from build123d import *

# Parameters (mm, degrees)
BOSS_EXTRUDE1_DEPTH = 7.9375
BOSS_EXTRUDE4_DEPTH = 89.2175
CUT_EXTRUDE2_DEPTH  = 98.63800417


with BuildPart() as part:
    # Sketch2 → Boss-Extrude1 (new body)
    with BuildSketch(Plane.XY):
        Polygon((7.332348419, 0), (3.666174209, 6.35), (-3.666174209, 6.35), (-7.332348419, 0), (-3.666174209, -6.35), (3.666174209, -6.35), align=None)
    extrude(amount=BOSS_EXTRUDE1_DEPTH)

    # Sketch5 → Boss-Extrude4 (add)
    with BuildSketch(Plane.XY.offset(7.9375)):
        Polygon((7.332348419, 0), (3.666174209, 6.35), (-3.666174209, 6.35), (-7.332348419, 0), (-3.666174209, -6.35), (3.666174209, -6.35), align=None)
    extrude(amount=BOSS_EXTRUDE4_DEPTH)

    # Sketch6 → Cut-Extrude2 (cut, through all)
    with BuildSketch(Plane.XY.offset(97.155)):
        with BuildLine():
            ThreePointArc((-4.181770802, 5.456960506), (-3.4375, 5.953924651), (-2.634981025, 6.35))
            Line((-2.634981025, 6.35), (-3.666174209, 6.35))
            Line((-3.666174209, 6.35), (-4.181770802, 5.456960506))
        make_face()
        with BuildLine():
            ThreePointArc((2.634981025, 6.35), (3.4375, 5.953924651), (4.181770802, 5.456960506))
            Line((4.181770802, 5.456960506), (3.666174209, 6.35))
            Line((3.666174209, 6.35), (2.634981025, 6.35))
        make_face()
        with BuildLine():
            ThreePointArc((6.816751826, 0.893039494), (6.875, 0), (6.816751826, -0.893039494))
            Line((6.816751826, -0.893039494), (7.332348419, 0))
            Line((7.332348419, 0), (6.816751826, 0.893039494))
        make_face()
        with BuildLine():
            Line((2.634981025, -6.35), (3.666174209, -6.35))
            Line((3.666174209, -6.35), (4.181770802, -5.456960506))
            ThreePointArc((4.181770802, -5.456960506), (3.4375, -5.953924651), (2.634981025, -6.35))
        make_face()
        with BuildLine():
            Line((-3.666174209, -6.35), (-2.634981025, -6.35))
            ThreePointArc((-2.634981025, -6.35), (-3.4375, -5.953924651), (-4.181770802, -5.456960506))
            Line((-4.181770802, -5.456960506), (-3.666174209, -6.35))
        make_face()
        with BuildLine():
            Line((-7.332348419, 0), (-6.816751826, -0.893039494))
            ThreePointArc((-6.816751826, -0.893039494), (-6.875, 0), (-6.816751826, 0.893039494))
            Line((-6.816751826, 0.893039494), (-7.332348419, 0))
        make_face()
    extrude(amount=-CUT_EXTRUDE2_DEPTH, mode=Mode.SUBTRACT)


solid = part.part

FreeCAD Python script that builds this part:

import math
import FreeCAD as App
import Part
import Sketcher
Q = App.Units.Quantity


def add_polygon(sketch, points):
    """Adds a closed chain of lines whose ends are joined by coincident constraints."""
    first, n = sketch.GeometryCount, len(points)
    for a, b in zip(points, points[1:] + points[:1]):
        sketch.addGeometry(Part.LineSegment(App.Vector(*a, 0), App.Vector(*b, 0)), False)
    for i in range(n):
        sketch.addConstraint(Sketcher.Constraint("Coincident", first + i, 2, first + (i + 1) % n, 1))

doc = App.newDocument("Part")
params = doc.addObject("Spreadsheet::Sheet", "Params")
for row, (alias, value) in enumerate([
    ("pad1_length", "0.3125 in"),
    ("pad2_length", "3.5125 in"),
], start=1):
    params.set(f"A{row}", alias)
    params.set(f"B{row}", "=" + value)
    params.setAlias(f"B{row}", alias)

body = doc.addObject("PartDesign::Body", "Body")

sketch1 = doc.addObject("Sketcher::SketchObject", "Sketch")
body.addObject(sketch1)
sketch1.AttachmentSupport = (doc.XY_Plane, [""])
sketch1.MapMode = "FlatFace"
add_polygon(sketch1, [(7, 0), (4, 6), (-4, 6), (-7, 0), (-4, -6), (4, -6)])
sketch1.addConstraint([
    Sketcher.Constraint("Horizontal", 1),
    Sketcher.Constraint("Horizontal", 4),
    Sketcher.Constraint("Symmetric", 0, 2, 3, 2, -1, 1),
    Sketcher.Constraint("Symmetric", 2, 2, 5, 2, -1, 1),
    Sketcher.Constraint("PointOnObject", 2, 2, -1),
    Sketcher.Constraint("Parallel", 2, 5),
    Sketcher.Constraint("Vertical", 1, 2, 3, 2),
    Sketcher.Constraint("Angle", 0, Q("120 deg")),
    Sketcher.Constraint("DistanceY", 3, 2, 1, 2, Q("0.5 in")),
    Sketcher.Constraint("DistanceX", 1, 2, 1, 1, 7.332348),
])
pad1 = doc.addObject("PartDesign::Pad", "Pad")
body.addObject(pad1)
pad1.Profile = sketch1
pad1.setExpression("Length", "Params.pad1_length")

sketch2 = doc.addObject("Sketcher::SketchObject", "Sketch001")
body.addObject(sketch2)
sketch2.AttachmentSupport = (doc.XY_Plane, [""])
sketch2.MapMode = "FlatFace"
sketch2.AttachmentOffset = App.Placement(App.Vector(0, 0, 0.3125 * 25.4), App.Rotation())
add_polygon(sketch2, [(7, 0), (4, 6), (-4, 6), (-7, 0), (-4, -6), (4, -6)])
sketch2.addConstraint([
    Sketcher.Constraint("Horizontal", 1),
    Sketcher.Constraint("Horizontal", 4),
    Sketcher.Constraint("Symmetric", 0, 2, 3, 2, -1, 1),
    Sketcher.Constraint("Symmetric", 2, 2, 5, 2, -1, 1),
    Sketcher.Constraint("PointOnObject", 2, 2, -1),
    Sketcher.Constraint("Parallel", 2, 5),
    Sketcher.Constraint("Vertical", 1, 2, 3, 2),
    Sketcher.Constraint("Angle", 0, Q("120 deg")),
    Sketcher.Constraint("DistanceY", 3, 2, 1, 2, Q("0.5 in")),
    Sketcher.Constraint("DistanceX", 1, 2, 1, 1, 7.332348),
])
pad2 = doc.addObject("PartDesign::Pad", "Pad001")
body.addObject(pad2)
pad2.Profile = sketch2
pad2.setExpression("Length", "Params.pad2_length")

sketch3 = doc.addObject("Sketcher::SketchObject", "Sketch002")
body.addObject(sketch3)
sketch3.AttachmentSupport = (doc.XY_Plane, [""])
sketch3.MapMode = "FlatFace"
sketch3.AttachmentOffset = App.Placement(App.Vector(0, 0, 3.825 * 25.4), App.Rotation())
sketch3.addGeometry([
    Part.ArcOfCircle(Part.Circle(App.Vector(0, 0, 0), App.Vector(0, 0, 1), 6.9), math.radians(112.54), math.radians(127.46)),
    Part.LineSegment(App.Vector(-2.6, 6.3, 0), App.Vector(-3.7, 6.3, 0)),
    Part.LineSegment(App.Vector(-3.7, 6.3, 0), App.Vector(-4.2, 5.5, 0)),
    Part.ArcOfCircle(Part.Circle(App.Vector(0, 0, 0), App.Vector(0, 0, 1), 6.9), math.radians(52.54), math.radians(67.46)),
    Part.LineSegment(App.Vector(4.2, 5.5, 0), App.Vector(3.7, 6.3, 0)),
    Part.LineSegment(App.Vector(3.7, 6.3, 0), App.Vector(2.6, 6.3, 0)),
    Part.ArcOfCircle(Part.Circle(App.Vector(0, 0, 0), App.Vector(0, 0, 1), 6.9), math.radians(-7.46), math.radians(7.46)),
    Part.LineSegment(App.Vector(6.8, -0.9, 0), App.Vector(7.3, 0, 0)),
    Part.LineSegment(App.Vector(7.3, 0, 0), App.Vector(6.8, 0.9, 0)),
    Part.LineSegment(App.Vector(2.6, -6.3, 0), App.Vector(3.7, -6.3, 0)),
    Part.LineSegment(App.Vector(3.7, -6.3, 0), App.Vector(4.2, -5.5, 0)),
    Part.ArcOfCircle(Part.Circle(App.Vector(0, 0, 0), App.Vector(0, 0, 1), 6.9), math.radians(-67.46), math.radians(-52.54)),
    Part.LineSegment(App.Vector(-3.7, -6.3, 0), App.Vector(-2.6, -6.3, 0)),
    Part.ArcOfCircle(Part.Circle(App.Vector(0, 0, 0), App.Vector(0, 0, 1), 6.9), math.radians(-127.46), math.radians(-112.54)),
    Part.LineSegment(App.Vector(-4.2, -5.5, 0), App.Vector(-3.7, -6.3, 0)),
    Part.LineSegment(App.Vector(-7.3, 0, 0), App.Vector(-6.8, -0.9, 0)),
    Part.ArcOfCircle(Part.Circle(App.Vector(0, 0, 0), App.Vector(0, 0, 1), 6.9), math.radians(172.54), math.radians(187.46)),
    Part.LineSegment(App.Vector(-6.8, 0.9, 0), App.Vector(-7.3, 0, 0)),
], False)
sketch3.addConstraint([
    Sketcher.Constraint("Coincident", 0, 1, 1, 1),
    Sketcher.Constraint("Coincident", 1, 2, 2, 1),
    Sketcher.Constraint("Coincident", 2, 2, 0, 2),
    Sketcher.Constraint("Coincident", 3, 1, 4, 1),
    Sketcher.Constraint("Coincident", 4, 2, 5, 1),
    Sketcher.Constraint("Coincident", 5, 2, 3, 2),
    Sketcher.Constraint("Coincident", 6, 1, 7, 1),
    Sketcher.Constraint("Coincident", 7, 2, 8, 1),
    Sketcher.Constraint("Coincident", 8, 2, 6, 2),
    Sketcher.Constraint("Coincident", 9, 2, 10, 1),
    Sketcher.Constraint("Coincident", 10, 2, 11, 2),
    Sketcher.Constraint("Coincident", 11, 1, 9, 1),
    Sketcher.Constraint("Coincident", 12, 2, 13, 2),
    Sketcher.Constraint("Coincident", 13, 1, 14, 1),
    Sketcher.Constraint("Coincident", 14, 2, 12, 1),
    Sketcher.Constraint("Coincident", 15, 2, 16, 2),
    Sketcher.Constraint("Coincident", 16, 1, 17, 1),
    Sketcher.Constraint("Coincident", 17, 2, 15, 1),
    Sketcher.Constraint("Horizontal", 1),
    Sketcher.Constraint("Horizontal", 5),
    Sketcher.Constraint("Horizontal", 9),
    Sketcher.Constraint("Horizontal", 12),
    Sketcher.Constraint("Coincident", 0, 3, -1, 1),
    Sketcher.Constraint("Coincident", 3, 3, -1, 1),
    Sketcher.Constraint("Coincident", 6, 3, -1, 1),
    Sketcher.Constraint("Coincident", 11, 3, -1, 1),
    Sketcher.Constraint("Coincident", 13, 3, -1, 1),
    Sketcher.Constraint("Coincident", 16, 3, -1, 1),
    Sketcher.Constraint("Equal", 0, 3),
    Sketcher.Constraint("Equal", 3, 6),
    Sketcher.Constraint("Equal", 6, 11),
    Sketcher.Constraint("Equal", 11, 13),
    Sketcher.Constraint("Equal", 13, 16),
    Sketcher.Constraint("Symmetric", 1, 2, 9, 2, -1, 1),
    Sketcher.Constraint("Symmetric", 4, 2, 14, 2, -1, 1),
    Sketcher.Constraint("Symmetric", 7, 2, 17, 2, -1, 1),
    Sketcher.Constraint("Symmetric", 1, 2, 4, 2, -2),
    Sketcher.Constraint("PointOnObject", 7, 2, -1),
    Sketcher.Constraint("Parallel", 2, 7),
    Sketcher.Constraint("Parallel", 4, 8),
    Sketcher.Constraint("Parallel", 7, 10),
    Sketcher.Constraint("Parallel", 8, 14),
    Sketcher.Constraint("Parallel", 14, 15),
    Sketcher.Constraint("Parallel", 10, 17),
    Sketcher.Constraint("Horizontal", 2, 2, 3, 1),
    Sketcher.Constraint("Equal", 4, 7),
    Sketcher.Constraint("Angle", 2, Q("-120 deg")),
    Sketcher.Constraint("DistanceY", -1, 1, 0, 1, Q("0.25 in")),
    Sketcher.Constraint("Radius", 0, 6.875),
    Sketcher.Constraint("DistanceX", 1, 2, 1, 1, 1.031193),
])
pocket1 = doc.addObject("PartDesign::Pocket", "Pocket")
body.addObject(pocket1)
pocket1.Profile = sketch3
pocket1.Type = "ThroughAll"

doc.recompute()
